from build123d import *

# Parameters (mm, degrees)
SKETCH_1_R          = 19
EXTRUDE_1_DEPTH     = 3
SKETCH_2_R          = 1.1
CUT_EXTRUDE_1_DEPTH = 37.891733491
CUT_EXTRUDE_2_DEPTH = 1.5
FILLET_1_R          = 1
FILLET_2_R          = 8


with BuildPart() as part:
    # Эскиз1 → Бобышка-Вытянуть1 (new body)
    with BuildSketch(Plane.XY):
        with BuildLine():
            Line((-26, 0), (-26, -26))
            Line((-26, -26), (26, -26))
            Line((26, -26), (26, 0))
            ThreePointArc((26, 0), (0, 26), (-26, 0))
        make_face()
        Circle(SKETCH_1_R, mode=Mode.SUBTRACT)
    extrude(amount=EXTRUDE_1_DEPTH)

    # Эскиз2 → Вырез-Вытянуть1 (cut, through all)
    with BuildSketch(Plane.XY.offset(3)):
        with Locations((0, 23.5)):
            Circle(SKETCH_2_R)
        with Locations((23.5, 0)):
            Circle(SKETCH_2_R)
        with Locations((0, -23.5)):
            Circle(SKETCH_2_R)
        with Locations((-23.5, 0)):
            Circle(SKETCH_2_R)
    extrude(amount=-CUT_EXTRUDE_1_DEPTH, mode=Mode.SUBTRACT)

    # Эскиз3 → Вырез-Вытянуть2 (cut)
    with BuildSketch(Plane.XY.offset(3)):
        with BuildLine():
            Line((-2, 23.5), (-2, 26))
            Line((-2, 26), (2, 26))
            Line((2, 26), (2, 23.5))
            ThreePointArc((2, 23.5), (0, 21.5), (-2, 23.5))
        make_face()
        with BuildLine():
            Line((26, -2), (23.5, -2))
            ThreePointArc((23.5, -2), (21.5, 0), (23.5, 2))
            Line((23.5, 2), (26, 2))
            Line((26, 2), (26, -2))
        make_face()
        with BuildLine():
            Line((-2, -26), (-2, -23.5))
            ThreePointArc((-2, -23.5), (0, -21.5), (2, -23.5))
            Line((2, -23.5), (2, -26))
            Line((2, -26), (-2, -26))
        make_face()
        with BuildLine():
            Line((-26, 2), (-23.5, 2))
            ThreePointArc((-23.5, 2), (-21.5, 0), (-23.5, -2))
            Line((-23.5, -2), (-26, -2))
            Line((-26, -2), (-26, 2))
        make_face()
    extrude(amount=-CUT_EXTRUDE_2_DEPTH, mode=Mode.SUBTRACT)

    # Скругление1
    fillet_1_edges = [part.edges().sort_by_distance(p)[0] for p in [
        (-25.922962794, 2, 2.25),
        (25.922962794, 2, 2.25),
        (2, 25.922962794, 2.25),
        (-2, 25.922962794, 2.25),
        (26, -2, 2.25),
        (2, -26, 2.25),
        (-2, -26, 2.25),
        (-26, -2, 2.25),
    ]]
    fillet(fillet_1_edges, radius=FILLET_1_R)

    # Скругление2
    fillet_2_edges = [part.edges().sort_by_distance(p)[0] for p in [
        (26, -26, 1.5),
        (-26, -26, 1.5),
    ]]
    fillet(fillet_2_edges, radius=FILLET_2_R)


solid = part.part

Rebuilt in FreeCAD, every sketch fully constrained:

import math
import FreeCAD as App
import Part
import Sketcher
from FreeCAD import Vector
Q = App.Units.Quantity


def edges_at(feature, points):
    """Names of the edges that pass closest to the given points."""
    edges = feature.Shape.Edges
    near = lambda p: min(range(len(edges)), key=lambda i: edges[i].distToShape(Part.Vertex(*p))[0])
    return sorted({f"Edge{near(p) + 1}" for p in points})

doc = App.newDocument("Part")
params = doc.addObject("Spreadsheet::Sheet", "Params")
for row, (alias, value) in enumerate([
    ("sketch1_diameter", "38 mm"),
    ("sketch1_radius", "26 mm"),
    ("sketch1_height", "26 mm"),
    ("pad1_length", "3 mm"),
    ("sketch2_diameter", "2.2 mm"),
    ("sketch3_radius", "2 mm"),
    ("sketch3_width", "2.5 mm"),
    ("pocket2_length", "1.5 mm"),
    ("fillet_radius", "1 mm"),
    ("fillet2_radius", "8 mm"),
], start=1):
    params.set(f"A{row}", alias)
    params.set(f"B{row}", "=" + value)
    params.setAlias(f"B{row}", alias)

body = doc.addObject("PartDesign::Body", "Body")

# Sketch on XY plane
sketch1 = body.newObject("Sketcher::SketchObject", "Sketch")
sketch1.AttachmentSupport = (doc.getObject("XY_Plane"), [""])
sketch1.MapMode = "FlatFace"
sketch1.addGeometry([
    Part.LineSegment(Vector(-26, 0, 0), Vector(-26, -26, 0)),  # 0
    Part.LineSegment(Vector(-26, -26, 0), Vector(26, -26, 0)),  # 1
    Part.LineSegment(Vector(26, -26, 0), Vector(26, 0, 0)),  # 2
    Part.ArcOfCircle(Part.Circle(Vector(0, 0, 0), Vector(0, 0, 1), 26), math.radians(0), math.radians(180)),  # 3
    Part.Circle(Vector(0, 0, 0), Vector(0, 0, 1), 19),  # 4
], False)
sketch1.addConstraint([
    Sketcher.Constraint("Coincident", 0, 2, 1, 1),
    Sketcher.Constraint("Coincident", 1, 2, 2, 1),
    Sketcher.Constraint("Tangent", 2, 2, 3, 1),
    Sketcher.Constraint("Tangent", 3, 2, 0, 1),
    Sketcher.Constraint("Vertical", 0),
    Sketcher.Constraint("Horizontal", 1),
    Sketcher.Constraint("Vertical", 2),
    Sketcher.Constraint("Coincident", 3, 3, -1, 1),
    Sketcher.Constraint("Coincident", 4, 3, -1, 1),
    Sketcher.Constraint("Diameter", 4, Q("38 mm")),
    Sketcher.Constraint("Radius", 3, Q("26 mm")),
    Sketcher.Constraint("DistanceY", 0, 2, 0, 1, Q("26 mm")),
])
sketch1.setExpression("Constraints[9]", "Params.sketch1_diameter")
sketch1.setExpression("Constraints[10]", "Params.sketch1_radius")
sketch1.setExpression("Constraints[11]", "Params.sketch1_height")
pad1 = body.newObject("PartDesign::Pad", "Pad")
pad1.Profile = sketch1
pad1.setExpression("Length", "Params.pad1_length")

# Sketch on XY plane
sketch2 = body.newObject("Sketcher::SketchObject", "Sketch001")
sketch2.AttachmentSupport = (doc.getObject("XY_Plane"), [""])
sketch2.MapMode = "FlatFace"
sketch2.AttachmentOffset = App.Placement(Vector(0, 0, 3), App.Rotation())
sketch2.addGeometry([
    Part.Circle(Vector(0, 23.5, 0), Vector(0, 0, 1), 1.1),
    Part.Circle(Vector(23.5, 0, 0), Vector(0, 0, 1), 1.1),
    Part.Circle(Vector(0, -23.5, 0), Vector(0, 0, 1), 1.1),
    Part.Circle(Vector(-23.5, 0, 0), Vector(0, 0, 1), 1.1),
], False)
sketch2.addConstraint([
    Sketcher.Constraint("Equal", 0, 1),
    Sketcher.Constraint("Equal", 1, 2),
    Sketcher.Constraint("Equal", 2, 3),
    Sketcher.Constraint("Symmetric", 0, 3, 2, 3, -1, 1),
    Sketcher.Constraint("Symmetric", 1, 3, 3, 3, -1, 1),
    Sketcher.Constraint("PointOnObject", 0, 3, -2),
    Sketcher.Constraint("PointOnObject", 1, 3, -1),
    Sketcher.Constraint("Diameter", 0, Q("2.2 mm")),
    Sketcher.Constraint("DistanceY", 2, 3, 0, 3, Q("47 mm")),
    Sketcher.Constraint("DistanceX", 3, 3, 1, 3, Q("47 mm")),
])
sketch2.setExpression("Constraints[7]", "Params.sketch2_diameter")
pocket1 = body.newObject("PartDesign::Pocket", "Pocket")
pocket1.Profile = sketch2
pocket1.Type = "ThroughAll"

# Sketch on XY plane
sketch3 = body.newObject("Sketcher::SketchObject", "Sketch002")
sketch3.AttachmentSupport = (doc.getObject("XY_Plane"), [""])
sketch3.MapMode = "FlatFace"
sketch3.AttachmentOffset = App.Placement(Vector(0, 0, 3), App.Rotation())
sketch3.addGeometry([
    Part.LineSegment(Vector(-2, 26, 0), Vector(-2, 23.5, 0)),  # 0
    Part.ArcOfCircle(Part.Circle(Vector(0, 23.5, 0), Vector(0, 0, 1), 2), math.radians(180), math.radians(360)),  # 1
    Part.LineSegment(Vector(2, 23.5, 0), Vector(2, 26, 0)),  # 2
    Part.LineSegment(Vector(2, 26, 0), Vector(-2, 26, 0)),  # 3
    Part.LineSegment(Vector(23.5, -2, 0), Vector(26, -2, 0)),  # 4
    Part.LineSegment(Vector(26, -2, 0), Vector(26, 2, 0)),  # 5
    Part.LineSegment(Vector(26, 2, 0), Vector(23.5, 2, 0)),  # 6
    Part.ArcOfCircle(Part.Circle(Vector(23.5, 0, 0), Vector(0, 0, 1), 2), math.radians(90), math.radians(270)),  # 7
    Part.LineSegment(Vector(-2, -23.5, 0), Vector(-2, -26, 0)),  # 8
    Part.LineSegment(Vector(-2, -26, 0), Vector(2, -26, 0)),  # 9
    Part.LineSegment(Vector(2, -26, 0), Vector(2, -23.5, 0)),  # 10
    Part.ArcOfCircle(Part.Circle(Vector(0, -23.5, 0), Vector(0, 0, 1), 2), math.radians(0), math.radians(180)),  # 11
    Part.LineSegment(Vector(-23.5, 2, 0), Vector(-26, 2, 0)),  # 12
    Part.LineSegment(Vector(-26, 2, 0), Vector(-26, -2, 0)),  # 13
    Part.LineSegment(Vector(-26, -2, 0), Vector(-23.5, -2, 0)),  # 14
    Part.ArcOfCircle(Part.Circle(Vector(-23.5, 0, 0), Vector(0, 0, 1), 2), math.radians(-90), math.radians(90)),  # 15
], False)
sketch3.addConstraint([
    Sketcher.Constraint("Tangent", 0, 2, 1, 1),
    Sketcher.Constraint("Tangent", 1, 2, 2, 1),
    Sketcher.Constraint("Coincident", 2, 2, 3, 1),
    Sketcher.Constraint("Coincident", 3, 2, 0, 1),
    Sketcher.Constraint("Coincident", 4, 2, 5, 1),
    Sketcher.Constraint("Coincident", 5, 2, 6, 1),
    Sketcher.Constraint("Tangent", 6, 2, 7, 1),
    Sketcher.Constraint("Tangent", 7, 2, 4, 1),
    Sketcher.Constraint("Coincident", 8, 2, 9, 1),
    Sketcher.Constraint("Coincident", 9, 2, 10, 1),
    Sketcher.Constraint("Tangent", 10, 2, 11, 1),
    Sketcher.Constraint("Tangent", 11, 2, 8, 1),
    Sketcher.Constraint("Coincident", 12, 2, 13, 1),
    Sketcher.Constraint("Coincident", 13, 2, 14, 1),
    Sketcher.Constraint("Tangent", 14, 2, 15, 1),
    Sketcher.Constraint("Tangent", 15, 2, 12, 1),
    Sketcher.Constraint("Vertical", 0),
    Sketcher.Constraint("Vertical", 2),
    Sketcher.Constraint("Horizontal", 3),
    Sketcher.Constraint("Horizontal", 4),
    Sketcher.Constraint("Vertical", 5),
    Sketcher.Constraint("Horizontal", 6),
    Sketcher.Constraint("Vertical", 8),
    Sketcher.Constraint("Horizontal", 9),
    Sketcher.Constraint("Vertical", 10),
    Sketcher.Constraint("Horizontal", 12),
    Sketcher.Constraint("Vertical", 13),
    Sketcher.Constraint("Horizontal", 14),
    Sketcher.Constraint("Equal", 1, 7),
    Sketcher.Constraint("Equal", 7, 11),
    Sketcher.Constraint("Equal", 11, 15),
    Sketcher.Constraint("Symmetric", 1, 3, 11, 3, -1, 1),
    Sketcher.Constraint("Symmetric", 7, 3, 15, 3, -1, 1),
    Sketcher.Constraint("Symmetric", 5, 2, 12, 2, -2),
    Sketcher.Constraint("Symmetric", 3, 2, 8, 2, -1),
    Sketcher.Constraint("Equal", 14, 0),
    Sketcher.Constraint("Radius", 1, Q("2 mm")),
    Sketcher.Constraint("DistanceX", 4, 1, 4, 2, Q("2.5 mm")),
    Sketcher.Constraint("DistanceY", -1, 1, 2, 2, Q("26 mm")),
    Sketcher.Constraint("DistanceX", -1, 1, 4, 2, Q("26 mm")),
])
sketch3.setExpression("Constraints[36]", "Params.sketch3_radius")
sketch3.setExpression("Constraints[37]", "Params.sketch3_width")
pocket2 = body.newObject("PartDesign::Pocket", "Pocket001")
pocket2.Profile = sketch3
pocket2.setExpression("Length", "Params.pocket2_length")
doc.recompute()

fillet = body.newObject("PartDesign::Fillet", "Fillet")
fillet.Base = (pocket2, edges_at(pocket2, [
    (-25.923, 2, 2.25),
    (25.923, 2, 2.25),
    (2, 25.923, 2.25),
    (-2, 25.923, 2.25),
    (26, -2, 2.25),
    (2, -26, 2.25),
    (-2, -26, 2.25),
    (-26, -2, 2.25),
]))
fillet.setExpression("Radius", "Params.fillet_radius")
doc.recompute()

fillet2 = body.newObject("PartDesign::Fillet", "Fillet001")
fillet2.Base = (fillet, edges_at(fillet, [(26, -26, 1.5), (-26, -26, 1.5)]))
fillet2.setExpression("Radius", "Params.fillet2_radius")

doc.recompute()
